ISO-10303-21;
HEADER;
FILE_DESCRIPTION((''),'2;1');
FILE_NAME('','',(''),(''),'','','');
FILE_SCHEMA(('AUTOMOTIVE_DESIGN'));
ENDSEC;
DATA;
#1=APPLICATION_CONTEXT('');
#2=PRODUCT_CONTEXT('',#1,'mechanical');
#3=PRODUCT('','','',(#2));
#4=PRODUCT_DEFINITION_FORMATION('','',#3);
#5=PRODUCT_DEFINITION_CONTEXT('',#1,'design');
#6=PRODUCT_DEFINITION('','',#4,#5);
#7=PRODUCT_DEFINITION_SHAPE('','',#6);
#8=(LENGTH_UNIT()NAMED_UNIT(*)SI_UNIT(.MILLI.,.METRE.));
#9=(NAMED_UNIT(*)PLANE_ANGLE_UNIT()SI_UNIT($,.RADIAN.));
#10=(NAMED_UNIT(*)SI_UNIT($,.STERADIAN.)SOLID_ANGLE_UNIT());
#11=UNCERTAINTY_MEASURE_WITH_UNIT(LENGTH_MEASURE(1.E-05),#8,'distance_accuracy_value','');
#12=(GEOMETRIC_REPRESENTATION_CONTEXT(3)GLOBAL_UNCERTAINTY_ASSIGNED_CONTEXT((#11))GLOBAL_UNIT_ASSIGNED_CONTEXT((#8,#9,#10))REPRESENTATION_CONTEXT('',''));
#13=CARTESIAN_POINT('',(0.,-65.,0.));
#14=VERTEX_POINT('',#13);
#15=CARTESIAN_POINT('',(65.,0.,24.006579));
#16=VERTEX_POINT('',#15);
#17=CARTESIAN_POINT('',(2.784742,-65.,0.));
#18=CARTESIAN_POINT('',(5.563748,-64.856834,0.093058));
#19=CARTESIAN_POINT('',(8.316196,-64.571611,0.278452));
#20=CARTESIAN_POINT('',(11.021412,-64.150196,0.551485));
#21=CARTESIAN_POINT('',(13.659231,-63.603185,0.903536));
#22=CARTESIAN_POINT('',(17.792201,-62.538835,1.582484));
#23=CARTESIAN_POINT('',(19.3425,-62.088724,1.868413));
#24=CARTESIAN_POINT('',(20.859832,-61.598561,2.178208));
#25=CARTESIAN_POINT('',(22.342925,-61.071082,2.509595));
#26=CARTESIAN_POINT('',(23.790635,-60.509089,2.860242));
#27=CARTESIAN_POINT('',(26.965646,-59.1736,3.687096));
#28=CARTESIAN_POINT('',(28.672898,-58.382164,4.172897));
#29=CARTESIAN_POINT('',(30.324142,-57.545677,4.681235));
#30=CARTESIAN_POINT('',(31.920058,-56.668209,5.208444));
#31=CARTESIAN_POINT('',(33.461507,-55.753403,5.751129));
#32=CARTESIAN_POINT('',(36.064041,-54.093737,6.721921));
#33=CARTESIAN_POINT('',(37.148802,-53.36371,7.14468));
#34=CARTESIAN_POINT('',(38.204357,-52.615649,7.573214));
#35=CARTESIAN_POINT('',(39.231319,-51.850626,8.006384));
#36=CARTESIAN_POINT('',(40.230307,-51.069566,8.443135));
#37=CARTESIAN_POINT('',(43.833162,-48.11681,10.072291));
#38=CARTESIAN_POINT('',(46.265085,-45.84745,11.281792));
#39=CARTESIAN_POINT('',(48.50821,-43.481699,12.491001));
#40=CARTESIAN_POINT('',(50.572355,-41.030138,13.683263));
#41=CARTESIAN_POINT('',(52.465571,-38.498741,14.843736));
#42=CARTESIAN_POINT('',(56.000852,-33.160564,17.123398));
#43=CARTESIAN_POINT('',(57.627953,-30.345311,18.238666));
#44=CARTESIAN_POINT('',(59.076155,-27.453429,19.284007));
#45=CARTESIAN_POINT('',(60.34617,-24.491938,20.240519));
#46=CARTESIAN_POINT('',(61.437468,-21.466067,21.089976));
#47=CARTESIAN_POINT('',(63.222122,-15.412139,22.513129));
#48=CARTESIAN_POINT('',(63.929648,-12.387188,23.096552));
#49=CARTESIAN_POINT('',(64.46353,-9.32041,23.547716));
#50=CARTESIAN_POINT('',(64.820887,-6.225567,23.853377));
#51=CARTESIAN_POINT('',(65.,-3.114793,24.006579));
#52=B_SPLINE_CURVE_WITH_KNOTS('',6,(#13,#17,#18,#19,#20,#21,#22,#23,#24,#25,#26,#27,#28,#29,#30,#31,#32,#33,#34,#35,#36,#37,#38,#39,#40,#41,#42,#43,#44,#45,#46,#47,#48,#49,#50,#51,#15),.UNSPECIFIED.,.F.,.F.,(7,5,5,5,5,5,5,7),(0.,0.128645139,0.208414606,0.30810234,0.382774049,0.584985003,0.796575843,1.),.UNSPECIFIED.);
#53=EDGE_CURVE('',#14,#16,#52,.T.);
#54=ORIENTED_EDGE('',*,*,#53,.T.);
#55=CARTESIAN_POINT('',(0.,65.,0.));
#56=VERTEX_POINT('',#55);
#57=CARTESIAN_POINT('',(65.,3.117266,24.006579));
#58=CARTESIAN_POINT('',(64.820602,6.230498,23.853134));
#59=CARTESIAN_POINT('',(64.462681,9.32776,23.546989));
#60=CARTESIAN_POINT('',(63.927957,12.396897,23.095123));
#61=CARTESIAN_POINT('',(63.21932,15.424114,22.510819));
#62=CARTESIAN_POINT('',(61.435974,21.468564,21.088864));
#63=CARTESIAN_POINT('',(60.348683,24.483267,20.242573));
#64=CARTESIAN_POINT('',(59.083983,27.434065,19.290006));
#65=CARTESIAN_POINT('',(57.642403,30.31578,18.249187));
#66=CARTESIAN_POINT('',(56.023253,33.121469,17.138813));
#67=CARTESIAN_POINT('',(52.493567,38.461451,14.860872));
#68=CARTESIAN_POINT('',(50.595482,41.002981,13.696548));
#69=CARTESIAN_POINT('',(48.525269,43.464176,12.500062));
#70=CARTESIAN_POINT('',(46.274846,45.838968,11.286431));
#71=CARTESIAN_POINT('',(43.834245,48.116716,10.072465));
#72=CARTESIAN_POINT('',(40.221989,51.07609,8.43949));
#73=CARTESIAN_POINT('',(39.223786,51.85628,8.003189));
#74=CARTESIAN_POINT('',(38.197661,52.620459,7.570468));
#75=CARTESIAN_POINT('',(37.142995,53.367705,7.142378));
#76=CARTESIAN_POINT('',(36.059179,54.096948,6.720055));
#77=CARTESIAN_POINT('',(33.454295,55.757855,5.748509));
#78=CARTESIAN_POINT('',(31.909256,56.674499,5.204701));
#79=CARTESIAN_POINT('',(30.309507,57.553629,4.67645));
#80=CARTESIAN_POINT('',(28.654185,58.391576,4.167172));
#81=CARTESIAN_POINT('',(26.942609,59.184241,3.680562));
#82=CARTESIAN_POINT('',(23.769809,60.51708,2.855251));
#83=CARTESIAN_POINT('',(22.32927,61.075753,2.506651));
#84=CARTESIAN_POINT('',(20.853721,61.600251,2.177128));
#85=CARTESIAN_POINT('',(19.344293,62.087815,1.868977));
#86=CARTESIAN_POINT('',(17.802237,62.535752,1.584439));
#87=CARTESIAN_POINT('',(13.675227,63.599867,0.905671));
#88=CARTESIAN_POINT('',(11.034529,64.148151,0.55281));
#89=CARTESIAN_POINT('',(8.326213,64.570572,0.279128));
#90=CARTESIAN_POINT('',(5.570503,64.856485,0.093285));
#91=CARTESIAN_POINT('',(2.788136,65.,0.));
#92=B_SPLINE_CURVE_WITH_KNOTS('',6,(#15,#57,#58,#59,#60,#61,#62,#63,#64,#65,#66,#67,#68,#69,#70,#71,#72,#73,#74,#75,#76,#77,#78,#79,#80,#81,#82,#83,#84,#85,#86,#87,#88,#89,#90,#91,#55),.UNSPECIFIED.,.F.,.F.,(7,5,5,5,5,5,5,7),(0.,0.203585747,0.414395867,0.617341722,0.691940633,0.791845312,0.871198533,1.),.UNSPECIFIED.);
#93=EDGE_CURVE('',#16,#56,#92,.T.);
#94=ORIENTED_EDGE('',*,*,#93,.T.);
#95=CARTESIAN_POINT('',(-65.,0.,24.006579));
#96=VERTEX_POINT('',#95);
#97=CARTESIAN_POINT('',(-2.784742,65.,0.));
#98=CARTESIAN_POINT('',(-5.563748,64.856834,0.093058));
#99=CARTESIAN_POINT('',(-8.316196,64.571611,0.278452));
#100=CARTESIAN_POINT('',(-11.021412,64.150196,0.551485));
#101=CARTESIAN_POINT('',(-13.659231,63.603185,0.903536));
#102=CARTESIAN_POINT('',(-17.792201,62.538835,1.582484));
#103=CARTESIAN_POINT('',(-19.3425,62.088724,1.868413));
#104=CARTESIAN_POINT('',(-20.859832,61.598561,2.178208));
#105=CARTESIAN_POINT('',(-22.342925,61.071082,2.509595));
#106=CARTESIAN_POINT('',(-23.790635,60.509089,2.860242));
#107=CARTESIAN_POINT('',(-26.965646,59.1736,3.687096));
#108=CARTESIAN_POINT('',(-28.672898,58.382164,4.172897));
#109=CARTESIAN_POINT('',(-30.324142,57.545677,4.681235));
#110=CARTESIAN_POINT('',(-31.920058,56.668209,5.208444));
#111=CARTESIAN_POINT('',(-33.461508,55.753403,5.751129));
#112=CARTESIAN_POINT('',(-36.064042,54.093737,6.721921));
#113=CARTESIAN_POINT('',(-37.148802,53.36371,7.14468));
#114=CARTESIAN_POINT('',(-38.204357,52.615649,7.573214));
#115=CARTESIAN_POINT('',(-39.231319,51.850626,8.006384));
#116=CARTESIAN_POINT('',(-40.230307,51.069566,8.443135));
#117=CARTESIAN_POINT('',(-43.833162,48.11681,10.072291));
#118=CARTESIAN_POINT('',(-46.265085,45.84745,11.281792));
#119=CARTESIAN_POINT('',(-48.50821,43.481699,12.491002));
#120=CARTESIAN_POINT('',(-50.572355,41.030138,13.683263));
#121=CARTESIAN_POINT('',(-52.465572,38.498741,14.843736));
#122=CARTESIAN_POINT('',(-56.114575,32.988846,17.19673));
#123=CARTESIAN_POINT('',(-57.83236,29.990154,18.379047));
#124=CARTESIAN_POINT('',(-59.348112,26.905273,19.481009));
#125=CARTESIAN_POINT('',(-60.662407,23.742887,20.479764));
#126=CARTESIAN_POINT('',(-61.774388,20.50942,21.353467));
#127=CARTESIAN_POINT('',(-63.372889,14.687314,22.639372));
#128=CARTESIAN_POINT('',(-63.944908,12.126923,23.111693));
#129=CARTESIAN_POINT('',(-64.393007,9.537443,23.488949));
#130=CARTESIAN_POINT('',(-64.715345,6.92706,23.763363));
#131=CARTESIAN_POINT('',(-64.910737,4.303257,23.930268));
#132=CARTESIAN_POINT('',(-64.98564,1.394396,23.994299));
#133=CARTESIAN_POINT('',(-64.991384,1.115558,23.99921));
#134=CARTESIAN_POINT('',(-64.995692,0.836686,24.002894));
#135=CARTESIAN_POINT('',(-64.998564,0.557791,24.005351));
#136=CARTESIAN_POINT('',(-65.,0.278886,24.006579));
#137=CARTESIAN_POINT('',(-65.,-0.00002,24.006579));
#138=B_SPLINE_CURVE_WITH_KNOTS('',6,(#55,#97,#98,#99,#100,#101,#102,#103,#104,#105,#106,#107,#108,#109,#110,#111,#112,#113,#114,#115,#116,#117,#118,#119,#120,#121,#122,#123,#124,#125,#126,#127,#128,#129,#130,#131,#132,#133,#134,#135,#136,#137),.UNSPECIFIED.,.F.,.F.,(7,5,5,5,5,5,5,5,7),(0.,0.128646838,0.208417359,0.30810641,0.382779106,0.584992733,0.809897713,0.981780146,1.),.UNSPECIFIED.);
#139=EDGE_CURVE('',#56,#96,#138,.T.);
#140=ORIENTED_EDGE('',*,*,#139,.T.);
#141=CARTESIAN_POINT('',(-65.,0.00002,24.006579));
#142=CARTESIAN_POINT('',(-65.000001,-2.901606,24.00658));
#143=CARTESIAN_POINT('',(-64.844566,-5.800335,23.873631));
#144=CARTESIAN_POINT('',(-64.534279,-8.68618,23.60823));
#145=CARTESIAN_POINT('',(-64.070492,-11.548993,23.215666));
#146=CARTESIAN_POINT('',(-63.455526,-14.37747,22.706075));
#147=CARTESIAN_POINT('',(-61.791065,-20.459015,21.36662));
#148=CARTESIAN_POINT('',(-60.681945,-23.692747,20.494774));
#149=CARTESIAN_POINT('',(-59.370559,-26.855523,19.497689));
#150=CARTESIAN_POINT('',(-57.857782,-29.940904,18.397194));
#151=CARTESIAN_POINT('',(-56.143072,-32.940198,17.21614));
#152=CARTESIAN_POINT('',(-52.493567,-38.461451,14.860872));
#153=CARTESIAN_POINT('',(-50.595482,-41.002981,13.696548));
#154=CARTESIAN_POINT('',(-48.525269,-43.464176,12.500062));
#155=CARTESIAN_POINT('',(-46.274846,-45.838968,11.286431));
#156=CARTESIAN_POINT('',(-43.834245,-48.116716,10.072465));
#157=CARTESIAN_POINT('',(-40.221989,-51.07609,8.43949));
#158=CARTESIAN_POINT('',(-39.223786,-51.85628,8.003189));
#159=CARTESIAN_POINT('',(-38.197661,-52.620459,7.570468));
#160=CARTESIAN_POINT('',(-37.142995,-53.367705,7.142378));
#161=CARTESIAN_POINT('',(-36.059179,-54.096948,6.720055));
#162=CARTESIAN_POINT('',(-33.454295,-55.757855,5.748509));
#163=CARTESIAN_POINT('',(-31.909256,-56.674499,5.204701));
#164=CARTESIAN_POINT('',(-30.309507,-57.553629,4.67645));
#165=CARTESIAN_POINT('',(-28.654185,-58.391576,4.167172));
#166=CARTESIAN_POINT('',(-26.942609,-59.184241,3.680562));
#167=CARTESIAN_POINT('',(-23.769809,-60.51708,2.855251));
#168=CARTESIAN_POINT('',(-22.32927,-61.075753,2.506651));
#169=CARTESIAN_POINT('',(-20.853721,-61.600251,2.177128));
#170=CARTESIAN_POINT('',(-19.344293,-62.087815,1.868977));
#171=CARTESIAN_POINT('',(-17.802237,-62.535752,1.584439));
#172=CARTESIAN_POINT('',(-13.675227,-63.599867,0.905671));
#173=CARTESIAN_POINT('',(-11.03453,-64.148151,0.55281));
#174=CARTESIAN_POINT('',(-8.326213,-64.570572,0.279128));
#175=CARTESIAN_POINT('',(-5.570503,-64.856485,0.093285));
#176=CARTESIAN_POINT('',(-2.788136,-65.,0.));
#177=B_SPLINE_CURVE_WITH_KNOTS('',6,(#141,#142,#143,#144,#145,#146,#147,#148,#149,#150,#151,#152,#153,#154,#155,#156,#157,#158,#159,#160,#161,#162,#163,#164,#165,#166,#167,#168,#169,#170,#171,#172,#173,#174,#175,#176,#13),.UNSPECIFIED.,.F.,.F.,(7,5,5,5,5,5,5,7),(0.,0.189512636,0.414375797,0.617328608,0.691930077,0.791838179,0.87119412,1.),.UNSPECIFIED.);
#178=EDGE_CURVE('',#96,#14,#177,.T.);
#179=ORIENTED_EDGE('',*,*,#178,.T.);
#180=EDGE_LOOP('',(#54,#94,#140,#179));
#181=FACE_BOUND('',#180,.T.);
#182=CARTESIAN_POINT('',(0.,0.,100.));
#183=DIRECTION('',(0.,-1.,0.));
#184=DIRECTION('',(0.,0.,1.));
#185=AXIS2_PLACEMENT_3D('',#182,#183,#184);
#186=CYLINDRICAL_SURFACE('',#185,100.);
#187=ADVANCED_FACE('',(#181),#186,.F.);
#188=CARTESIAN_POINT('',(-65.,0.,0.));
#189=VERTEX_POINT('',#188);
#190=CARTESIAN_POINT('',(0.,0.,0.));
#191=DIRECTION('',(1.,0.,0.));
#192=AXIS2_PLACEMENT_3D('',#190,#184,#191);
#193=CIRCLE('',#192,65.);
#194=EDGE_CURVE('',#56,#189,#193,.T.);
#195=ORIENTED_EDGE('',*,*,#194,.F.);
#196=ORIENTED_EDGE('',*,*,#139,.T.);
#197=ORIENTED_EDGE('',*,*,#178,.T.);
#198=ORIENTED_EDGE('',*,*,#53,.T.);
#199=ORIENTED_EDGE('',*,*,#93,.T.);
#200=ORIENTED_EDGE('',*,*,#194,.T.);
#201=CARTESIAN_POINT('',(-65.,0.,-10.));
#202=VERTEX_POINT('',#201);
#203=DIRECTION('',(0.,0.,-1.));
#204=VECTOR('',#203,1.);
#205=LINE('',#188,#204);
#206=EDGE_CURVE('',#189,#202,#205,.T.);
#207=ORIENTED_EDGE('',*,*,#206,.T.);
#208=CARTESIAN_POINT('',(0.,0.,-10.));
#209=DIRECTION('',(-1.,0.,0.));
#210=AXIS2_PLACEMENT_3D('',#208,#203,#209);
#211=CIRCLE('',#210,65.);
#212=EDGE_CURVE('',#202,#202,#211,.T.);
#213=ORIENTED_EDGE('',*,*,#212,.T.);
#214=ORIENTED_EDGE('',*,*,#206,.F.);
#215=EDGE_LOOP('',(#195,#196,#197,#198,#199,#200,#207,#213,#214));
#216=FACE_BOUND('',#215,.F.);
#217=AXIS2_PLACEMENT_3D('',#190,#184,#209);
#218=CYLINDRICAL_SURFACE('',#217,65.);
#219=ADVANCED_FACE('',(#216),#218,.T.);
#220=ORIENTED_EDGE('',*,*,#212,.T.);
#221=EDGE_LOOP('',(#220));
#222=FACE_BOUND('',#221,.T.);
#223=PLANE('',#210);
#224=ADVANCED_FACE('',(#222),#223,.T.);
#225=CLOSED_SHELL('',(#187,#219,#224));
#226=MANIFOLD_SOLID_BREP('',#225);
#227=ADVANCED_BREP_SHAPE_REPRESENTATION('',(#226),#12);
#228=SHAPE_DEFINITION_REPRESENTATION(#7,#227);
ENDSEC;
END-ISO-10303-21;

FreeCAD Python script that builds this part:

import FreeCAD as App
import Part
import Sketcher

V = App.Vector
Q = App.Units.Quantity

doc = App.newDocument("Part")
params = doc.addObject("Spreadsheet::Sheet", "Params")
for row, (alias, value) in enumerate([
    ("sketch1_diameter", "130 mm"),
    ("pad1_length", "25 mm"),
    ("sketch2_diameter", "200 mm"),
    ("pocket1_length", "130 mm"),
    ("sketch3_diameter", "130 mm"),
    ("pad2_length", "10 mm"),
], start=1):
    params.set(f"A{row}", alias)
    params.set(f"B{row}", "=" + value)
    params.setAlias(f"B{row}", alias)

body = doc.addObject("PartDesign::Body", "Body")
body.AllowCompound = True

sketch1 = doc.addObject("Sketcher::SketchObject", "Sketch")
body.addObject(sketch1)
sketch1.AttachmentSupport = (doc.XY_Plane, [""])
sketch1.MapMode = "FlatFace"
sketch1.addGeometry(Part.Circle(V(0, 0, 0), V(0, 0, 1), 65), False)
sketch1.addConstraint(Sketcher.Constraint("Coincident", 0, 3, -1, 1))
sketch1.addConstraint(Sketcher.Constraint("Diameter", 0, Q("130 mm")))
sketch1.setExpression("Constraints[1]", "Params.sketch1_diameter")
pad1 = doc.addObject("PartDesign::Pad", "Pad")
body.addObject(pad1)
pad1.Profile = sketch1
pad1.setExpression("Length", "Params.pad1_length")

sketch2 = doc.addObject("Sketcher::SketchObject", "Sketch001")
body.addObject(sketch2)
sketch2.AttachmentSupport = (doc.XZ_Plane, [""])
sketch2.MapMode = "FlatFace"
sketch2.addGeometry(Part.Circle(V(0, 100, 0), V(0, 0, 1), 100), False)
sketch2.addConstraint(Sketcher.Constraint("PointOnObject", 0, 3, -2))
sketch2.addConstraint(Sketcher.Constraint("Diameter", 0, Q("200 mm")))
sketch2.addConstraint(Sketcher.Constraint("DistanceY", -1, 1, 0, 3, Q("100 mm")))
sketch2.setExpression("Constraints[1]", "Params.sketch2_diameter")
pocket1 = doc.addObject("PartDesign::Pocket", "Pocket")
body.addObject(pocket1)
pocket1.Profile = sketch2
pocket1.setExpression("Length", "Params.pocket1_length")
pocket1.Midplane = True

sketch3 = doc.addObject("Sketcher::SketchObject", "Sketch002")
body.addObject(sketch3)
sketch3.AttachmentSupport = (doc.XY_Plane, [""])
sketch3.MapMode = "FlatFace"
sketch3.addGeometry(Part.Circle(V(0, 0, 0), V(0, 0, 1), 65), False)
sketch3.addConstraint(Sketcher.Constraint("Coincident", 0, 3, -1, 1))
sketch3.addConstraint(Sketcher.Constraint("Diameter", 0, Q("130 mm")))
sketch3.setExpression("Constraints[1]", "Params.sketch3_diameter")
pad2 = doc.addObject("PartDesign::Pad", "Pad001")
body.addObject(pad2)
pad2.Profile = sketch3
pad2.setExpression("Length", "Params.pad2_length")
pad2.Reversed = True

doc.recompute()
